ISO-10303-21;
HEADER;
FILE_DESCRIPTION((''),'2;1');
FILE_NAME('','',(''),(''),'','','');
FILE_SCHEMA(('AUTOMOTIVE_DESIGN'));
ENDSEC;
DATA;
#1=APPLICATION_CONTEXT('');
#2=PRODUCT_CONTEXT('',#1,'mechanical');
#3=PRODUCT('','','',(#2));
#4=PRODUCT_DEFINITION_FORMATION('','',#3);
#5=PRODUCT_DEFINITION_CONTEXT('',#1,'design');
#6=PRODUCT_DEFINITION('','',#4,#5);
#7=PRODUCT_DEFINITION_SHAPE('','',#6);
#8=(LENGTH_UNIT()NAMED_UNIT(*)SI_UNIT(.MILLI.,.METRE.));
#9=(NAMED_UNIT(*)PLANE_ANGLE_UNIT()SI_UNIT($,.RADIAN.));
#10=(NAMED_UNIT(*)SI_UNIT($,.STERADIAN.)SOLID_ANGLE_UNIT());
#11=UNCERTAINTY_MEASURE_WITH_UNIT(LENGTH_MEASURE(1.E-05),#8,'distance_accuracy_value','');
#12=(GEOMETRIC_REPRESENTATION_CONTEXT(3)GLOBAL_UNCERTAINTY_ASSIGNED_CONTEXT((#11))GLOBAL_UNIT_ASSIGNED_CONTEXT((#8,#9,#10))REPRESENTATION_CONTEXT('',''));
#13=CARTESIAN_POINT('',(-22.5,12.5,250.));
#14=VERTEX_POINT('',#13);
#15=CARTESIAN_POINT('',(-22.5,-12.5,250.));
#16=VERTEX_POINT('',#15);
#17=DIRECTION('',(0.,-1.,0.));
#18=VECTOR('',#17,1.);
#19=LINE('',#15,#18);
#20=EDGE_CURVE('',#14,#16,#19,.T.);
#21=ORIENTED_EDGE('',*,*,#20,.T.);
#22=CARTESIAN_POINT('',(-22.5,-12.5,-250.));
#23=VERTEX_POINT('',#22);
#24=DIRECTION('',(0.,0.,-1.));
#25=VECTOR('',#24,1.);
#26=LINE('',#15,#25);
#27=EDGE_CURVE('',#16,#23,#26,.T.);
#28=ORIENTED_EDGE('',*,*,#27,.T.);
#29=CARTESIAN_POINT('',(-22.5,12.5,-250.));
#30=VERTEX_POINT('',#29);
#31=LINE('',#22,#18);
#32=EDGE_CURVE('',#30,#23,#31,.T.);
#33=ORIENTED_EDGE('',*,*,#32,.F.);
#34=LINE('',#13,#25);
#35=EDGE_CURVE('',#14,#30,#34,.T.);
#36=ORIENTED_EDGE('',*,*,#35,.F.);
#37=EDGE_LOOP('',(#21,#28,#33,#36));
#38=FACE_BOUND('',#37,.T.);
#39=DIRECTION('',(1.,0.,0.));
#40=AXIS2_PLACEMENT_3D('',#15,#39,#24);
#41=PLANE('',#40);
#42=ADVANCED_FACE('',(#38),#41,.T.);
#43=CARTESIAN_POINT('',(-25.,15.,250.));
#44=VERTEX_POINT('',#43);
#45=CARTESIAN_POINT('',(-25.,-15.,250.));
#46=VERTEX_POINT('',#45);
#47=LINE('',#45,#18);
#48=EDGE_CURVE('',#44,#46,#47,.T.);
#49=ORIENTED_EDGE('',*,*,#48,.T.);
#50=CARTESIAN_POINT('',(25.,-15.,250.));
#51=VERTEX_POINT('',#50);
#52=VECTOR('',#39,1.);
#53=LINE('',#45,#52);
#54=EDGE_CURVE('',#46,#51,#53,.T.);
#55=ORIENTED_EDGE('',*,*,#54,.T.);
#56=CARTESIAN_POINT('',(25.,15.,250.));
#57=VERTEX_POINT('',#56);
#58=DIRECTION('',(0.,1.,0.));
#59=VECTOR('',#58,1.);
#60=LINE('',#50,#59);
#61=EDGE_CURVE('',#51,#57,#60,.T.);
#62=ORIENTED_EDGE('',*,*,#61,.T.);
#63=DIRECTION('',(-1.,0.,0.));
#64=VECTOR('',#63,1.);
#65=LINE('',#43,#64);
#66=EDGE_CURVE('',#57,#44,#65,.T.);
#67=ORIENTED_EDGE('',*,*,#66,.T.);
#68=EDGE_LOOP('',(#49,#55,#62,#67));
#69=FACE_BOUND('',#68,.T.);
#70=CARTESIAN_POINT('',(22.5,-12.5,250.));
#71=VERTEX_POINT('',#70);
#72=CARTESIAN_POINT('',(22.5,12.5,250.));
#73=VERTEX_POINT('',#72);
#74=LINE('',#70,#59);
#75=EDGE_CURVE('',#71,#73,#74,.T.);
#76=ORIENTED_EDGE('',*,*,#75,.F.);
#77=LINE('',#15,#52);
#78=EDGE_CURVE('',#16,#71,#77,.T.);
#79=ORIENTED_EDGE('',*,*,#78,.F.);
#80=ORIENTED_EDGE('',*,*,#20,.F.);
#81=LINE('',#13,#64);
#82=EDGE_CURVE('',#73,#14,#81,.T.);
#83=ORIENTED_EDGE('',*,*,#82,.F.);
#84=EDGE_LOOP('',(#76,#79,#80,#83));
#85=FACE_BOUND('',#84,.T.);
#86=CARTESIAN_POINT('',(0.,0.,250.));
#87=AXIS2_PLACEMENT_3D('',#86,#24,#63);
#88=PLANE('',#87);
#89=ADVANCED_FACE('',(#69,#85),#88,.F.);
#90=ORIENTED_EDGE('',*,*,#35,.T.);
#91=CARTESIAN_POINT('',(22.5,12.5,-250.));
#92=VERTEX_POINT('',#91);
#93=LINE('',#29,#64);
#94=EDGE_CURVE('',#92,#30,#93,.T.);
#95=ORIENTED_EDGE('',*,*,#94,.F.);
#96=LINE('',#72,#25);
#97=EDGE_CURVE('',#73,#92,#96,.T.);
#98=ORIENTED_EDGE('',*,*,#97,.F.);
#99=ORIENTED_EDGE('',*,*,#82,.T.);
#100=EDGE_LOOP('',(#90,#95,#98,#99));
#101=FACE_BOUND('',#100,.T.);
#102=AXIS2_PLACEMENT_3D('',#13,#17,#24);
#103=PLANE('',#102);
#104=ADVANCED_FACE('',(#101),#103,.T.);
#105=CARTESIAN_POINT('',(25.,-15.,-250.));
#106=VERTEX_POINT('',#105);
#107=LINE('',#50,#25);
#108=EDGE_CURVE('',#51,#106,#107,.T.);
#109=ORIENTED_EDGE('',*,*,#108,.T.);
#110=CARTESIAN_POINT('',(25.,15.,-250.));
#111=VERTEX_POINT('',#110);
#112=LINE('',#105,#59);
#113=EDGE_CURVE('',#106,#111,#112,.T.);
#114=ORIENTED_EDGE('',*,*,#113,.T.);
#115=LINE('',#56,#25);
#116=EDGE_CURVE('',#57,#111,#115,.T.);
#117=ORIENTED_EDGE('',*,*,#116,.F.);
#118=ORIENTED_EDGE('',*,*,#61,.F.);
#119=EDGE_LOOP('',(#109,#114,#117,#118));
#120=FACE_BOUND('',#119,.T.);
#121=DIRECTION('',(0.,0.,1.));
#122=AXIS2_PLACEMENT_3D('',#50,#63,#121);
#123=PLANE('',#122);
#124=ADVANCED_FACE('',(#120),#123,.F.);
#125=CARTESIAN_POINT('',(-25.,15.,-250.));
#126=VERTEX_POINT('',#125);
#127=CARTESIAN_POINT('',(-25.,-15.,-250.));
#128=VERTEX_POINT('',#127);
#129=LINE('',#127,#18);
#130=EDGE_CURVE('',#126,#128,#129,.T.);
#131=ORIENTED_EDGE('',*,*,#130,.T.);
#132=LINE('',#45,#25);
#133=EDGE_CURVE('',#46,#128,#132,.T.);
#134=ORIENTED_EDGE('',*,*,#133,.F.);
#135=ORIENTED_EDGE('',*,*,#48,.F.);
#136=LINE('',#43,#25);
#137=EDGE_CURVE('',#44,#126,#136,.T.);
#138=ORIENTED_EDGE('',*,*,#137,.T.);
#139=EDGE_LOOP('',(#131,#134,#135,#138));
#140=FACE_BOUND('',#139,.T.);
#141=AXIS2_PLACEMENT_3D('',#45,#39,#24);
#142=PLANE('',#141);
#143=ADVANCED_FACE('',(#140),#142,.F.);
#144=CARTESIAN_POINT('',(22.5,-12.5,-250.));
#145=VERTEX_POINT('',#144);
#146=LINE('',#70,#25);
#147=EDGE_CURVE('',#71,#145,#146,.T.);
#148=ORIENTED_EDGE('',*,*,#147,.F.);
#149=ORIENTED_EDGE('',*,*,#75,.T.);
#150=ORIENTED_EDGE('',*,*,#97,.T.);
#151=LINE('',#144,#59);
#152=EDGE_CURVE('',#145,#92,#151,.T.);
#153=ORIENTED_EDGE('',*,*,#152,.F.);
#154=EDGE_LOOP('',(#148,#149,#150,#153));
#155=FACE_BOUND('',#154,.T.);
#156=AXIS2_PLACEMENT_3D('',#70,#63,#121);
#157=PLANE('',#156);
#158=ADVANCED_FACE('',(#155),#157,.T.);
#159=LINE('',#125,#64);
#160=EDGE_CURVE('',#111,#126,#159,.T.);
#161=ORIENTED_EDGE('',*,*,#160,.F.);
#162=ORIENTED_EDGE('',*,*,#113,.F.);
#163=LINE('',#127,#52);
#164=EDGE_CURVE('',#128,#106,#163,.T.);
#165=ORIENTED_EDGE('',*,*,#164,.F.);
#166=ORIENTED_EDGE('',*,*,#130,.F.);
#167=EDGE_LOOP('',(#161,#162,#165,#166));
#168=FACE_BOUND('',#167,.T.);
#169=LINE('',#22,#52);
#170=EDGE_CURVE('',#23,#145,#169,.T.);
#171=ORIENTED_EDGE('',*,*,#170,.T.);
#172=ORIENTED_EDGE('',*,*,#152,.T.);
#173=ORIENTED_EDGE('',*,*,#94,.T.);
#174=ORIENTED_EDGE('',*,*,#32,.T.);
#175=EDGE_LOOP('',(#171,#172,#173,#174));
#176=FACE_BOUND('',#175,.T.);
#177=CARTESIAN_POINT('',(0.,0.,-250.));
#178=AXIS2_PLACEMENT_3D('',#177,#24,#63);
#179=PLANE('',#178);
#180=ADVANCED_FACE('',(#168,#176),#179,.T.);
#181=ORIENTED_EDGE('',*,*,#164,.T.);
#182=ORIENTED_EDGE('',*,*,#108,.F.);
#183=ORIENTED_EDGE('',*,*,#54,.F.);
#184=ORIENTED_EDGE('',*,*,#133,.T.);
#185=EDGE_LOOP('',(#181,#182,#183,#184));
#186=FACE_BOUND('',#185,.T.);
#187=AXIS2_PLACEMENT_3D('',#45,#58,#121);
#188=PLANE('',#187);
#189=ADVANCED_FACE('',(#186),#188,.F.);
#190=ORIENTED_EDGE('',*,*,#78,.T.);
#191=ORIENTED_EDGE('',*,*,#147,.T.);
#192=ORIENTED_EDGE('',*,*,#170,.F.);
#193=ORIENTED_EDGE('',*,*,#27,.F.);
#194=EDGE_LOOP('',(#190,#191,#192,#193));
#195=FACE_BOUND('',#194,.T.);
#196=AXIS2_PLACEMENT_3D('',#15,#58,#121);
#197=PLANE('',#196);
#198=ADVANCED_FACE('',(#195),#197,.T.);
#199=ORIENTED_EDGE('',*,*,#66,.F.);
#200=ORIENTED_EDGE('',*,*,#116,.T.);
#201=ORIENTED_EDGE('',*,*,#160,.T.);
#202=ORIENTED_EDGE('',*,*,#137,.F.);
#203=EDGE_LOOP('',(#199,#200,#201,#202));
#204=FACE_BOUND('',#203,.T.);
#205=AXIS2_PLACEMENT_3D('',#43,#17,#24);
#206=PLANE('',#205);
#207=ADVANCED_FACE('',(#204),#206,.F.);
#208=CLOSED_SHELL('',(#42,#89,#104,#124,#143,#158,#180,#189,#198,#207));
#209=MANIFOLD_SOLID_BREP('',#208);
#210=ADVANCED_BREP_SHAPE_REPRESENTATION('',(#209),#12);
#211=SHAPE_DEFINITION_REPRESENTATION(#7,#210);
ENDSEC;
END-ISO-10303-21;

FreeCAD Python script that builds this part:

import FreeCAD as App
import Part
import Sketcher
Q = App.Units.Quantity

doc = App.newDocument("Part")
body = doc.addObject("PartDesign::Body", "Body")

sketch1 = body.newObject("Sketcher::SketchObject", "Sketch")
sketch1.AttachmentSupport = (doc.getObject("XY_Plane"), [""])
sketch1.MapMode = "FlatFace"
sketch1.addGeometry([
    Part.LineSegment(App.Vector(-25, 15, 0), App.Vector(-25, -15, 0)),
    Part.LineSegment(App.Vector(-25, -15, 0), App.Vector(25, -15, 0)),
    Part.LineSegment(App.Vector(25, -15, 0), App.Vector(25, 15, 0)),
    Part.LineSegment(App.Vector(25, 15, 0), App.Vector(-25, 15, 0)),
    Part.LineSegment(App.Vector(22, -12, 0), App.Vector(-22, -12, 0)),
    Part.LineSegment(App.Vector(-22, -12, 0), App.Vector(-22, 12, 0)),
    Part.LineSegment(App.Vector(-22, 12, 0), App.Vector(22, 12, 0)),
    Part.LineSegment(App.Vector(22, 12, 0), App.Vector(22, -12, 0)),
], False)
sketch1.addConstraint([
    Sketcher.Constraint("Coincident", 0, 2, 1, 1),
    Sketcher.Constraint("Coincident", 1, 2, 2, 1),
    Sketcher.Constraint("Coincident", 2, 2, 3, 1),
    Sketcher.Constraint("Coincident", 3, 2, 0, 1),
    Sketcher.Constraint("Coincident", 4, 2, 5, 1),
    Sketcher.Constraint("Coincident", 5, 2, 6, 1),
    Sketcher.Constraint("Coincident", 6, 2, 7, 1),
    Sketcher.Constraint("Coincident", 7, 2, 4, 1),
    Sketcher.Constraint("Vertical", 0),
    Sketcher.Constraint("Horizontal", 1),
    Sketcher.Constraint("Vertical", 2),
    Sketcher.Constraint("Horizontal", 3),
    Sketcher.Constraint("Horizontal", 4),
    Sketcher.Constraint("Vertical", 5),
    Sketcher.Constraint("Horizontal", 6),
    Sketcher.Constraint("Vertical", 7),
    Sketcher.Constraint("Symmetric", 0, 2, 2, 2, -1, 1),
    Sketcher.Constraint("Symmetric", 4, 2, 6, 2, -1, 1),
    Sketcher.Constraint("DistanceX", 1, 1, 1, 2, Q("50 mm")),
    Sketcher.Constraint("DistanceX", 4, 2, 4, 1, Q("45 mm")),
    Sketcher.Constraint("DistanceY", 0, 2, 0, 1, Q("30 mm")),
    Sketcher.Constraint("DistanceY", 5, 1, 5, 2, Q("25 mm")),
])
pad1 = body.newObject("PartDesign::Pad", "Pad")
pad1.Profile = sketch1
pad1.Length = 500
pad1.Midplane = True

doc.recompute()
